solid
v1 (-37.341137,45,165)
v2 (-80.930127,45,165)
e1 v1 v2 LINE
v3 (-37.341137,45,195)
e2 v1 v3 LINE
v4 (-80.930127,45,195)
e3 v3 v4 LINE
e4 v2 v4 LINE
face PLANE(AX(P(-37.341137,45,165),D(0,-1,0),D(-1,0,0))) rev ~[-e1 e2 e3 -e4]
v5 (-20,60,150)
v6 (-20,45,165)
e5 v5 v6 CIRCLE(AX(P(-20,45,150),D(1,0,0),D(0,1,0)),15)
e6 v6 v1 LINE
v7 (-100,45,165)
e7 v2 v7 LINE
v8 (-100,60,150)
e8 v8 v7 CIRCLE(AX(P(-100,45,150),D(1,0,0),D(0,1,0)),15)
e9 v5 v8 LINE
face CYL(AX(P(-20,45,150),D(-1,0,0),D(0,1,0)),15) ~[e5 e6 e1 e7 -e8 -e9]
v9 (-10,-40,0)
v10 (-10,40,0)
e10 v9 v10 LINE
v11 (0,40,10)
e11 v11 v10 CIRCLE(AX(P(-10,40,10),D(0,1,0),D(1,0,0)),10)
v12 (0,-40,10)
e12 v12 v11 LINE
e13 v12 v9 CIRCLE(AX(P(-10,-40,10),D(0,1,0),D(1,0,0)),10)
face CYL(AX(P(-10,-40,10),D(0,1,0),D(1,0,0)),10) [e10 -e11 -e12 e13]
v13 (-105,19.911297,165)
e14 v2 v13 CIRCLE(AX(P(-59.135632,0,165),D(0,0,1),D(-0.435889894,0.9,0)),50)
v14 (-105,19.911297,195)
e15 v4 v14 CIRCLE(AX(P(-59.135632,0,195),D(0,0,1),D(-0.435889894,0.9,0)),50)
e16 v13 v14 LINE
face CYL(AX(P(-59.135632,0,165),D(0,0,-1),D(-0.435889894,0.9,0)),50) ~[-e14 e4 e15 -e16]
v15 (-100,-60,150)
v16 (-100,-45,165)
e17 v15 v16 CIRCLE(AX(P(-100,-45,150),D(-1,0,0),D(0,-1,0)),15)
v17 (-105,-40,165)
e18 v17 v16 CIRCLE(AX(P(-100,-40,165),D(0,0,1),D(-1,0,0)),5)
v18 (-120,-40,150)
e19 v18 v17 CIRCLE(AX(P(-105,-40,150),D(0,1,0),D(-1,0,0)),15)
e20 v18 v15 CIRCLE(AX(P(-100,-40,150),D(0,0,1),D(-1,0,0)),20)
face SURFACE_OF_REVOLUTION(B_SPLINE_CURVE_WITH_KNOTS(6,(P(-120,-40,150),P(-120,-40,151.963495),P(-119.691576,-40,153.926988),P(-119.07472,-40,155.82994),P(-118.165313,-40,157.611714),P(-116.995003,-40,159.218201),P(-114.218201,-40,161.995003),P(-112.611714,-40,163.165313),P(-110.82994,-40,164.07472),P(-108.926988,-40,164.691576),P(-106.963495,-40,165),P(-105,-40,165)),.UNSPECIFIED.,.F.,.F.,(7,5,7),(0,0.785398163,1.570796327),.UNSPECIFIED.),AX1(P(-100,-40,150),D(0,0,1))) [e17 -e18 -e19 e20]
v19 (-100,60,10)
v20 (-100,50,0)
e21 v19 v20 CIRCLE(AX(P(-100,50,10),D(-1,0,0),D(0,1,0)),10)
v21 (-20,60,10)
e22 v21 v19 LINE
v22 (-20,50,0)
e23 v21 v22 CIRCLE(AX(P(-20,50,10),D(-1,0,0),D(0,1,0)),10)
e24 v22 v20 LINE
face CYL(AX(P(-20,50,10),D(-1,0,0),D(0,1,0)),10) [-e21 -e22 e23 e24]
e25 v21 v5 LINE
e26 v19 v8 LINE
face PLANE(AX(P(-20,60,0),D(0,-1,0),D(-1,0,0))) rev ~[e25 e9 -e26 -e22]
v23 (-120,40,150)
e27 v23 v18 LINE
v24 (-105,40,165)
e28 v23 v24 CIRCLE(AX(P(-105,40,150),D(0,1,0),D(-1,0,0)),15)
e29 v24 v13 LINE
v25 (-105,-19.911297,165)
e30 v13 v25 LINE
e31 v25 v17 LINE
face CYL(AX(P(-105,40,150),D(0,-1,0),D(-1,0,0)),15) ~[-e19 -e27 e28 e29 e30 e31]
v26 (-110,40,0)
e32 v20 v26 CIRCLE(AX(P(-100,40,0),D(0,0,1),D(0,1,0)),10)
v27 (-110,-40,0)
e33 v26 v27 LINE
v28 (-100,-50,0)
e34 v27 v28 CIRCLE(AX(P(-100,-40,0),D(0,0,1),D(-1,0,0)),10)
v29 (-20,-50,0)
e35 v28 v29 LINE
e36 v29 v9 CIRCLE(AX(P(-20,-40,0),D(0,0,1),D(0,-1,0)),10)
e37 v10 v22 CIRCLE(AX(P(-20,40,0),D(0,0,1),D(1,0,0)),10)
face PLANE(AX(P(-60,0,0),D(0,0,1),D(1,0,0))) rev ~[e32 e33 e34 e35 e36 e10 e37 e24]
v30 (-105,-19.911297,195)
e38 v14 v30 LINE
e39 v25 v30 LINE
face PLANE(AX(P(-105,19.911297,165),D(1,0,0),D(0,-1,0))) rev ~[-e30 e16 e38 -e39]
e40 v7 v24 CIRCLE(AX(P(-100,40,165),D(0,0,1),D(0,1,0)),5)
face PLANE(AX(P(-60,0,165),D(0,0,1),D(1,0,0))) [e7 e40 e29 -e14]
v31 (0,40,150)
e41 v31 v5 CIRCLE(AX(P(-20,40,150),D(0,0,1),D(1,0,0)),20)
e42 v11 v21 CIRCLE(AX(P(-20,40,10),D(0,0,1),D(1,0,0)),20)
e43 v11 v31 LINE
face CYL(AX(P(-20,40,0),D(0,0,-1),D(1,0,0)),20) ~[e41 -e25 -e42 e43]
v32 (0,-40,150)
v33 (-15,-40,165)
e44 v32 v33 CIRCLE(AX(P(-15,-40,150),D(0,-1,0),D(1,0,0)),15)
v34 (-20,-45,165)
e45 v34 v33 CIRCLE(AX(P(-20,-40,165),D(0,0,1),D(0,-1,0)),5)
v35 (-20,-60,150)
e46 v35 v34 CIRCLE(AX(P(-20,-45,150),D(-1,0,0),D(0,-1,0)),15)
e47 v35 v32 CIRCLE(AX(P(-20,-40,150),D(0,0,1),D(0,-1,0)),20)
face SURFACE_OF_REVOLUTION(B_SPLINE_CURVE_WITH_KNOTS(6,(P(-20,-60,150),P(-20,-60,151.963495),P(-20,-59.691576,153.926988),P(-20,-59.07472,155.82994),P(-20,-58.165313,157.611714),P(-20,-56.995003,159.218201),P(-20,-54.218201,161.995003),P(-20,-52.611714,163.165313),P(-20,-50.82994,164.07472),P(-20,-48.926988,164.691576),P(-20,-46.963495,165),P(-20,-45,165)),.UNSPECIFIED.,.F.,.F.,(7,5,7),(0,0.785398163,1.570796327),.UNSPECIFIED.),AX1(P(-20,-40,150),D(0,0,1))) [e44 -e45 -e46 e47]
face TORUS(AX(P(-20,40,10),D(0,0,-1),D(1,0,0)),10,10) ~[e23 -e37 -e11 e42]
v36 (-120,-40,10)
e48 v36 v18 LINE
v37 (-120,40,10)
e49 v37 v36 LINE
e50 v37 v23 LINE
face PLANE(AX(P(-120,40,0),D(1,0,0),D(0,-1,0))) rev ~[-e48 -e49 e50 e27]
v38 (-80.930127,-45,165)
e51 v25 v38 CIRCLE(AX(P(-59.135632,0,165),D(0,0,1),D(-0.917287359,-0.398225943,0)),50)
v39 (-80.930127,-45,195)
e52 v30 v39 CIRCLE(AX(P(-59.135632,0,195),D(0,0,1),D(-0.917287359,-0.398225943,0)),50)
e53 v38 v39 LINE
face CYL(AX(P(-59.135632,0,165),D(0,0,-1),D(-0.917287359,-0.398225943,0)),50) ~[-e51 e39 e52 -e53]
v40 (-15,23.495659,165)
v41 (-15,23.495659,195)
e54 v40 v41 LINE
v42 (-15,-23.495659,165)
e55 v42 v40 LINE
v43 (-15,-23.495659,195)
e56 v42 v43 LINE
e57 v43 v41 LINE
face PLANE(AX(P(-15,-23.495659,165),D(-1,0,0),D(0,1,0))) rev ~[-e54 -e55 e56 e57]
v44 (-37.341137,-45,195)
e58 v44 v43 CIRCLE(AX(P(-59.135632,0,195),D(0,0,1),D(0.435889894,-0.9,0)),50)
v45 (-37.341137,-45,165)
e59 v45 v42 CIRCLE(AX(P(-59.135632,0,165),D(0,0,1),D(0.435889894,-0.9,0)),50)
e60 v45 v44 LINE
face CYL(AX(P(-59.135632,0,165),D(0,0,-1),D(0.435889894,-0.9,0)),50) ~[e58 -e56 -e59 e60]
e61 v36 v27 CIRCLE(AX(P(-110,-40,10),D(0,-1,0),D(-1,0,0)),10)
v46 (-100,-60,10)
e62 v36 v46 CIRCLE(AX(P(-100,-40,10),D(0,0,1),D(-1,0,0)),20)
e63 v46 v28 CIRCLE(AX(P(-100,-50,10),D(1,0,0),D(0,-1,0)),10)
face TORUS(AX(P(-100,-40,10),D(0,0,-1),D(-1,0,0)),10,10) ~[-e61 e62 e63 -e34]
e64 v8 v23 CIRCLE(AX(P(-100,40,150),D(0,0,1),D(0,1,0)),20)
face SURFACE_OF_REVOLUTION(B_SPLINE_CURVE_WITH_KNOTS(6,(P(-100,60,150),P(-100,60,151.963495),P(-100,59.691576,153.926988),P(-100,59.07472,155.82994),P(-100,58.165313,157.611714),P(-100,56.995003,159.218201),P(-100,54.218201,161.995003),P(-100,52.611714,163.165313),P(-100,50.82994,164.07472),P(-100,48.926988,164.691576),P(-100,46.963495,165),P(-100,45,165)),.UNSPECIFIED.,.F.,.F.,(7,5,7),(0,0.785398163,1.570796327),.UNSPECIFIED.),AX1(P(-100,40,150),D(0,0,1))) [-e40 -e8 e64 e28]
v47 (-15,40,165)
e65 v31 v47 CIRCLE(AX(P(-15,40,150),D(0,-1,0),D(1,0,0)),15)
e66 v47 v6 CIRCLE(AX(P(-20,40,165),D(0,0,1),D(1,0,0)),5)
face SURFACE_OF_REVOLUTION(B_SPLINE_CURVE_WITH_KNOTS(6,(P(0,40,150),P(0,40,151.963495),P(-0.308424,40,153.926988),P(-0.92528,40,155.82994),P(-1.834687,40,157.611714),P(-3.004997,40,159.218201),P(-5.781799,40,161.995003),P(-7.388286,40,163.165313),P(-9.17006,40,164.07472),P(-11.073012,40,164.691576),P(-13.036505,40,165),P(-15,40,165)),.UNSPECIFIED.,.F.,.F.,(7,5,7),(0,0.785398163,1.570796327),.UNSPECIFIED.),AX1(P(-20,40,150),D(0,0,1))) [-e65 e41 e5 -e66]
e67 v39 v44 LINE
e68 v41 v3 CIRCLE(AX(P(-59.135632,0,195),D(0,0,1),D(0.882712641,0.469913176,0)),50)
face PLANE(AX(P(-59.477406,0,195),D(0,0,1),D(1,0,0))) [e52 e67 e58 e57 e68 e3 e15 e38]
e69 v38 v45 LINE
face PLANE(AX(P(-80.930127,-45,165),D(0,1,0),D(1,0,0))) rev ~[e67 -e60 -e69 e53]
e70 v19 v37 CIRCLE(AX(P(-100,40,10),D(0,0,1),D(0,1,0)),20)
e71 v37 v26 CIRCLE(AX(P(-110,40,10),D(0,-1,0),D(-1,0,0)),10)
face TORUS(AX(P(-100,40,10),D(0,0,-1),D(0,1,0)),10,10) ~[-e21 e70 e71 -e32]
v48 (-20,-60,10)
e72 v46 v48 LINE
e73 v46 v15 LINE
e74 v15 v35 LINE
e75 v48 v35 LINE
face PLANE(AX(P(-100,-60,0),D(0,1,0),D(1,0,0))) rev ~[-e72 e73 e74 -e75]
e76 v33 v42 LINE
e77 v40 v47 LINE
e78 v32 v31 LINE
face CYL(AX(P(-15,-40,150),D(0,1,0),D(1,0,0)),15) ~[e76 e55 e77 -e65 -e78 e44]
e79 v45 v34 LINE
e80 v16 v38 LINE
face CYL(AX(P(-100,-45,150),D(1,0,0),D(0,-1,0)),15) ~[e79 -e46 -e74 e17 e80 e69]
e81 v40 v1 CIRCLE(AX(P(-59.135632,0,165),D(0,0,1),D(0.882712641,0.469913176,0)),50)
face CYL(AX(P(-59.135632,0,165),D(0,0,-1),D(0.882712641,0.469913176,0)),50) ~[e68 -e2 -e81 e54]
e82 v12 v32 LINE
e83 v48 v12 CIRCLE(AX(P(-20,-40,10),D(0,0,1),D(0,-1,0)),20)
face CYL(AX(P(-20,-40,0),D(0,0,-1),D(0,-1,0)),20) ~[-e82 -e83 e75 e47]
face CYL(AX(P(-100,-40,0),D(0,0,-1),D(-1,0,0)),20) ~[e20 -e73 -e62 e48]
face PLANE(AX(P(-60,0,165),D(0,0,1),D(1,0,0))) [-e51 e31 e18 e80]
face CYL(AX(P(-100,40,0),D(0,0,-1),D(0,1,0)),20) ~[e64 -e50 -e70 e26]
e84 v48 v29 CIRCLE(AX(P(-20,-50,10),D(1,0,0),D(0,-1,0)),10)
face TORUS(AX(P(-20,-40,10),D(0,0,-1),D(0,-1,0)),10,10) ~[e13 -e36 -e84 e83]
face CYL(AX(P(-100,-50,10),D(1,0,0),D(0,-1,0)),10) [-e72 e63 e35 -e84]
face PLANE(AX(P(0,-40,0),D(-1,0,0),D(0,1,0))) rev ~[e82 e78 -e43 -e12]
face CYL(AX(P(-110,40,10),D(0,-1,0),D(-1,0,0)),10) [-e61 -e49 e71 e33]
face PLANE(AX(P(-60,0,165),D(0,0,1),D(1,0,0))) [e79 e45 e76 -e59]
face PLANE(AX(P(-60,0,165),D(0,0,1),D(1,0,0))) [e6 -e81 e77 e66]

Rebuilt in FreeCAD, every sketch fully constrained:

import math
import FreeCAD as App
import Part
import Sketcher
from FreeCAD import Vector
Q = App.Units.Quantity


def edges_at(feature, points):
    """Names of the edges that pass closest to the given points."""
    edges = feature.Shape.Edges
    near = lambda p: min(range(len(edges)), key=lambda i: edges[i].distToShape(Part.Vertex(*p))[0])
    return sorted({f"Edge{near(p) + 1}" for p in points})

doc = App.newDocument("Part")
body = doc.addObject("PartDesign::Body", "Body")

sketch1 = body.newObject("Sketcher::SketchObject", "Sketch")
sketch1.AttachmentSupport = (doc.getObject("XY_Plane"), [""])
sketch1.MapMode = "FlatFace"
sketch1.addGeometry(Part.LineSegment(Vector(-20, 60, 0), Vector(-100, 60, 0)), False)
sketch1.addGeometry(Part.ArcOfCircle(Part.Circle(Vector(-100, 40, 0), Vector(0, 0, 1), 20), math.radians(90), math.radians(180)), False)
sketch1.addGeometry(Part.LineSegment(Vector(-120, 40, 0), Vector(-120, -40, 0)), False)
sketch1.addGeometry(Part.ArcOfCircle(Part.Circle(Vector(-100, -40, 0), Vector(0, 0, 1), 20), math.radians(180), math.radians(270)), False)
sketch1.addGeometry(Part.LineSegment(Vector(-100, -60, 0), Vector(-20, -60, 0)), False)
sketch1.addGeometry(Part.ArcOfCircle(Part.Circle(Vector(-20, -40, 0), Vector(0, 0, 1), 20), math.radians(-90), math.radians(0)), False)
sketch1.addGeometry(Part.LineSegment(Vector(0, -40, 0), Vector(0, 40, 0)), False)
sketch1.addGeometry(Part.ArcOfCircle(Part.Circle(Vector(-20, 40, 0), Vector(0, 0, 1), 20), math.radians(0), math.radians(90)), False)
sketch1.addConstraint(Sketcher.Constraint("Tangent", 0, 2, 1, 1))
sketch1.addConstraint(Sketcher.Constraint("Tangent", 1, 2, 2, 1))
sketch1.addConstraint(Sketcher.Constraint("Tangent", 2, 2, 3, 1))
sketch1.addConstraint(Sketcher.Constraint("Tangent", 3, 2, 4, 1))
sketch1.addConstraint(Sketcher.Constraint("Tangent", 4, 2, 5, 1))
sketch1.addConstraint(Sketcher.Constraint("Tangent", 5, 2, 6, 1))
sketch1.addConstraint(Sketcher.Constraint("Tangent", 6, 2, 7, 1))
sketch1.addConstraint(Sketcher.Constraint("Tangent", 7, 2, 0, 1))
sketch1.addConstraint(Sketcher.Constraint("Horizontal", 0))
sketch1.addConstraint(Sketcher.Constraint("Vertical", 2))
sketch1.addConstraint(Sketcher.Constraint("Horizontal", 4))
sketch1.addConstraint(Sketcher.Constraint("Vertical", 6))
sketch1.addConstraint(Sketcher.Constraint("Equal", 1, 3))
sketch1.addConstraint(Sketcher.Constraint("Equal", 3, 5))
sketch1.addConstraint(Sketcher.Constraint("Equal", 5, 7))
sketch1.addConstraint(Sketcher.Constraint("Symmetric", 5, 2, 6, 2, -1, 1))
sketch1.addConstraint(Sketcher.Constraint("Equal", 4, 2))
sketch1.addConstraint(Sketcher.Constraint("Radius", 1, Q("20 mm")))
sketch1.addConstraint(Sketcher.Constraint("DistanceX", 0, 2, 0, 1, Q("80 mm")))
pad1 = body.newObject("PartDesign::Pad", "Pad")
pad1.Profile = sketch1
pad1.Length = 165
doc.recompute()

fillet = body.newObject("PartDesign::Fillet", "Fillet")
fillet.Base = (pad1, edges_at(pad1, [(-60, -60, 0), (-114.142, -54.142, 0), (-5.858, -54.142, 0)]))
fillet.Radius = 10
doc.recompute()

fillet2 = body.newObject("PartDesign::Fillet", "Fillet001")
fillet2.Base = (fillet, edges_at(fillet, [(-60, 60, 165)]))
fillet2.Radius = 15

sketch2 = body.newObject("Sketcher::SketchObject", "Sketch001")
sketch2.AttachmentSupport = (doc.getObject("XY_Plane"), [""])
sketch2.MapMode = "FlatFace"
sketch2.AttachmentOffset = App.Placement(Vector(0, 0, 165), App.Rotation())
sketch2.addGeometry(Part.LineSegment(Vector(-15, -23, 0), Vector(-15, 23, 0)), False)
sketch2.addGeometry(Part.ArcOfCircle(Part.Circle(Vector(-59, 0, 0), Vector(0, 0, 1), 50), math.radians(28), math.radians(64)), False)
sketch2.addGeometry(Part.LineSegment(Vector(-37, 45, 0), Vector(-81, 45, 0)), False)
sketch2.addGeometry(Part.ArcOfCircle(Part.Circle(Vector(-59, 0, 0), Vector(0, 0, 1), 50), math.radians(116), math.radians(157)), False)
sketch2.addGeometry(Part.LineSegment(Vector(-105, 20, 0), Vector(-105, -20, 0)), False)
sketch2.addGeometry(Part.ArcOfCircle(Part.Circle(Vector(-59, 0, 0), Vector(0, 0, 1), 50), math.radians(-157), math.radians(-116)), False)
sketch2.addGeometry(Part.LineSegment(Vector(-81, -45, 0), Vector(-37, -45, 0)), False)
sketch2.addGeometry(Part.ArcOfCircle(Part.Circle(Vector(-59, 0, 0), Vector(0, 0, 1), 50), math.radians(-64), math.radians(-28)), False)
sketch2.addConstraint(Sketcher.Constraint("Coincident", 0, 2, 1, 1))
sketch2.addConstraint(Sketcher.Constraint("Coincident", 1, 2, 2, 1))
sketch2.addConstraint(Sketcher.Constraint("Coincident", 2, 2, 3, 1))
sketch2.addConstraint(Sketcher.Constraint("Coincident", 3, 2, 4, 1))
sketch2.addConstraint(Sketcher.Constraint("Coincident", 4, 2, 5, 1))
sketch2.addConstraint(Sketcher.Constraint("Coincident", 5, 2, 6, 1))
sketch2.addConstraint(Sketcher.Constraint("Coincident", 6, 2, 7, 1))
sketch2.addConstraint(Sketcher.Constraint("Coincident", 7, 2, 0, 1))
sketch2.addConstraint(Sketcher.Constraint("Vertical", 0))
sketch2.addConstraint(Sketcher.Constraint("Horizontal", 2))
sketch2.addConstraint(Sketcher.Constraint("Vertical", 4))
sketch2.addConstraint(Sketcher.Constraint("Horizontal", 6))
sketch2.addConstraint(Sketcher.Constraint("Coincident", 3, 3, 1, 3))
sketch2.addConstraint(Sketcher.Constraint("Coincident", 5, 3, 1, 3))
sketch2.addConstraint(Sketcher.Constraint("Coincident", 7, 3, 1, 3))
sketch2.addConstraint(Sketcher.Constraint("Equal", 1, 3))
sketch2.addConstraint(Sketcher.Constraint("Equal", 3, 5))
sketch2.addConstraint(Sketcher.Constraint("Equal", 5, 7))
sketch2.addConstraint(Sketcher.Constraint("Symmetric", 2, 2, 5, 2, -1))
sketch2.addConstraint(Sketcher.Constraint("Radius", 1, Q("50 mm")))
sketch2.addConstraint(Sketcher.Constraint("DistanceX", 0, 2, -1, 1, Q("15 mm")))
sketch2.addConstraint(Sketcher.Constraint("DistanceY", -1, 1, 1, 2, Q("45 mm")))
sketch2.addConstraint(Sketcher.Constraint("DistanceX", 3, 2, -1, 1, Q("105 mm")))
sketch2.addConstraint(Sketcher.Constraint("DistanceY", 0, 1, 0, 2, Q("46.991318 mm")))
pad2 = body.newObject("PartDesign::Pad", "Pad001")
pad2.Profile = sketch2
pad2.Length = 30

doc.recompute()
